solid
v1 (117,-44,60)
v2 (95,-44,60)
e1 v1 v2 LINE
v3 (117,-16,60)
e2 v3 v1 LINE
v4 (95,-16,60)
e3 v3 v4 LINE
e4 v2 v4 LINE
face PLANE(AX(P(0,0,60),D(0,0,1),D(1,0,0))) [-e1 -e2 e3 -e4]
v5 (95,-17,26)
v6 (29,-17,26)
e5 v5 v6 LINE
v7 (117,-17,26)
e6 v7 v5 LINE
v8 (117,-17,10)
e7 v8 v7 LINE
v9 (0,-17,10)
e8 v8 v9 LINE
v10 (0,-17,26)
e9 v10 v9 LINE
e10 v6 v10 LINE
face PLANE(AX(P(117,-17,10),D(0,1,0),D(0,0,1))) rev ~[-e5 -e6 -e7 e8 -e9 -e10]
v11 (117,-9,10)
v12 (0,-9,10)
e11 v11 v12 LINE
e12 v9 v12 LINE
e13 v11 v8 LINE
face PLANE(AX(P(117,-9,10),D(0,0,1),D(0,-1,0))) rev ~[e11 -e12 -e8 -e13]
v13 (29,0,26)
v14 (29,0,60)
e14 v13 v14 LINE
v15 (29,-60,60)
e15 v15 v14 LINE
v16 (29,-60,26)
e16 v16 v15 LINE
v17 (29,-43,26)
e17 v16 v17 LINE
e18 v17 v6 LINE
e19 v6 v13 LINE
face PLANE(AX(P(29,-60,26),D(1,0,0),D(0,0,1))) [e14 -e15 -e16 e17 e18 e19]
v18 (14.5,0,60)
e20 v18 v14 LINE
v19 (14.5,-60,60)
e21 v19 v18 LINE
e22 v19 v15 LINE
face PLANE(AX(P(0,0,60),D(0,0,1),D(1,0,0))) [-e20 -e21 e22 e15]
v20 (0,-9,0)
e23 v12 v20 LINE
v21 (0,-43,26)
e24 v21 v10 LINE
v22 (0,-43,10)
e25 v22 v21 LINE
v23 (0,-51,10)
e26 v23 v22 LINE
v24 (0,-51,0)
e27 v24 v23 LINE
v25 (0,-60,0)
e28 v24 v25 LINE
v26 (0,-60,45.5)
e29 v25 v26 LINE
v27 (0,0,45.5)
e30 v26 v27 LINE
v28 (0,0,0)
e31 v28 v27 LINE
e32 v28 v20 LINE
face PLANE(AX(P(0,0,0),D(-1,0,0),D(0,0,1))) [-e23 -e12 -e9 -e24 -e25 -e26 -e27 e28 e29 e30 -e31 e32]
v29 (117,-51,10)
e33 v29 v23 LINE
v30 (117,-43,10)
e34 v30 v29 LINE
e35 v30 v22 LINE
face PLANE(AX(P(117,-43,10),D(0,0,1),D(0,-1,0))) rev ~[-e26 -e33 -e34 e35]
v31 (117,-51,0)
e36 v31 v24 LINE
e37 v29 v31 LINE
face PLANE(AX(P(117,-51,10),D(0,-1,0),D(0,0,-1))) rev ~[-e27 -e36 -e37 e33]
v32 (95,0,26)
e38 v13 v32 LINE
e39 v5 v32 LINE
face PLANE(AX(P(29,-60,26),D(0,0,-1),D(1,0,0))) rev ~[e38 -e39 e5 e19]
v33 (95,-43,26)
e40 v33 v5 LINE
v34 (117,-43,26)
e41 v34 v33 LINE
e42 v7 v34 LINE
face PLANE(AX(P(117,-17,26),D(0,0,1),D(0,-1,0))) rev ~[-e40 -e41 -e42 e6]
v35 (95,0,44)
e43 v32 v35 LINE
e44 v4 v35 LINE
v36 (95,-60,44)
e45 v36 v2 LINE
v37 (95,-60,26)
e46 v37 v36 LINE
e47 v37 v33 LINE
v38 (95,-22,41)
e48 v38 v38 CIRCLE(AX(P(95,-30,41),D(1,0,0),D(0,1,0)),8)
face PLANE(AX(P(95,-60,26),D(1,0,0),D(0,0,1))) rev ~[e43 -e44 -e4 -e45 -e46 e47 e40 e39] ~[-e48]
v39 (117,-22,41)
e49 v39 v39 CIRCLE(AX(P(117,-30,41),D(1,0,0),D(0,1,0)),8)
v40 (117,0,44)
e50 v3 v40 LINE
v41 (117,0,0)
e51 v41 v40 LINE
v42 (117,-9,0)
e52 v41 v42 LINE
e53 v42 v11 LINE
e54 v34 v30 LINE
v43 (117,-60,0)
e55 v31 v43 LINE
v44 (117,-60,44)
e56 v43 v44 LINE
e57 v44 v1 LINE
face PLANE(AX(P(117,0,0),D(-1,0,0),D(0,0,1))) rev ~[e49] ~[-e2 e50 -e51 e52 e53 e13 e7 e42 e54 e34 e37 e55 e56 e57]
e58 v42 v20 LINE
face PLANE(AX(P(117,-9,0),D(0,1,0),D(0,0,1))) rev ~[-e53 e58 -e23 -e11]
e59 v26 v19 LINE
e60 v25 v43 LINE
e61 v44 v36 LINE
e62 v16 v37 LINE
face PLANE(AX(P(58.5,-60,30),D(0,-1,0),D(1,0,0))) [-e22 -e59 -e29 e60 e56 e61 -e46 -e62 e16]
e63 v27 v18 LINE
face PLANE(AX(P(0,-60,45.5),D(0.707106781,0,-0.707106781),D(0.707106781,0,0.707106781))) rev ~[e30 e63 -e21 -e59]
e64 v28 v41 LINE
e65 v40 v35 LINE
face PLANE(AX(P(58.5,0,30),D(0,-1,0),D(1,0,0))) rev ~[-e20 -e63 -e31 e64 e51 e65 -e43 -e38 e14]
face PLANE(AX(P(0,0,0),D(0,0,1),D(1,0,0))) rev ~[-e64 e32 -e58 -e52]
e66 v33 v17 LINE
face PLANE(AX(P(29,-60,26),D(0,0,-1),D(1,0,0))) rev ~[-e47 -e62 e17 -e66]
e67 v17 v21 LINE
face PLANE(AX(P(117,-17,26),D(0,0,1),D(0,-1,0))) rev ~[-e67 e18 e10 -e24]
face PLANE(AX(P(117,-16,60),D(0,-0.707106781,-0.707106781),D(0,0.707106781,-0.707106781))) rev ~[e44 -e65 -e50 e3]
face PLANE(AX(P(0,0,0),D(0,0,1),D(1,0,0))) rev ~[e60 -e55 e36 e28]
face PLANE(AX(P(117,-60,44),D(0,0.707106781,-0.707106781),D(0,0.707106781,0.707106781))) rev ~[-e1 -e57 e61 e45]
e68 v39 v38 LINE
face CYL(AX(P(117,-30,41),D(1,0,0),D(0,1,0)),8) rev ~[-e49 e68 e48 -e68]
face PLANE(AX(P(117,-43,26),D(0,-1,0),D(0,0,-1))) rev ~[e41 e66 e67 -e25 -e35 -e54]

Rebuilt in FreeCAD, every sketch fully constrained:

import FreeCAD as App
import Part
import Sketcher

V = App.Vector
Q = App.Units.Quantity


def add_polygon(sketch, points):
    """Adds a closed chain of lines whose ends are joined by coincident constraints."""
    first, n = sketch.GeometryCount, len(points)
    for a, b in zip(points, points[1:] + points[:1]):
        sketch.addGeometry(Part.LineSegment(App.Vector(*a, 0), App.Vector(*b, 0)), False)
    for i in range(n):
        sketch.addConstraint(Sketcher.Constraint("Coincident", first + i, 2, first + (i + 1) % n, 1))

doc = App.newDocument("Part")
body = doc.addObject("PartDesign::Body", "Body")

# Sketch on XZ plane
sketch1 = doc.addObject("Sketcher::SketchObject", "Sketch")
body.addObject(sketch1)
sketch1.AttachmentSupport = (doc.XZ_Plane, [""])
sketch1.MapMode = "FlatFace"
add_polygon(sketch1, [(0, 60), (0, 0), (117, 0), (117, 60)])  # lines 0-3
sketch1.addConstraint([
    Sketcher.Constraint("Vertical", 0),
    Sketcher.Constraint("Horizontal", 1),
    Sketcher.Constraint("Vertical", 2),
    Sketcher.Constraint("Horizontal", 3),
    Sketcher.Constraint("Coincident", 0, 2, -1, 1),
    Sketcher.Constraint("DistanceX", 1, 1, 1, 2, Q("117 mm")),
    Sketcher.Constraint("DistanceY", 0, 2, 0, 1, Q("60 mm")),
])
pad1 = doc.addObject("PartDesign::Pad", "Pad")
body.addObject(pad1)
pad1.Profile = sketch1
pad1.Length = 60

# Sketch on XZ plane
sketch2 = doc.addObject("Sketcher::SketchObject", "Sketch001")
body.addObject(sketch2)
sketch2.AttachmentSupport = (doc.XZ_Plane, [""])
sketch2.MapMode = "FlatFace"
sketch2.AttachmentOffset = App.Placement(V(0, 0, 60), App.Rotation())
add_polygon(sketch2, [(29, 60), (29, 26), (95, 26), (95, 60)])  # lines 0-3
sketch2.addConstraint([
    Sketcher.Constraint("Vertical", 0),
    Sketcher.Constraint("Horizontal", 1),
    Sketcher.Constraint("Vertical", 2),
    Sketcher.Constraint("Horizontal", 3),
    Sketcher.Constraint("DistanceX", 1, 1, 1, 2, Q("66 mm")),
    Sketcher.Constraint("DistanceY", 0, 2, 0, 1, Q("34 mm")),
    Sketcher.Constraint("DistanceX", -1, 1, 0, 2, Q("29 mm")),
    Sketcher.Constraint("DistanceY", -1, 1, 0, 2, Q("26 mm")),
])
pocket1 = doc.addObject("PartDesign::Pocket", "Pocket")
body.addObject(pocket1)
pocket1.Profile = sketch2
pocket1.Type = "ThroughAll"

# Sketch on XZ plane
sketch3 = doc.addObject("Sketcher::SketchObject", "Sketch002")
body.addObject(sketch3)
sketch3.AttachmentSupport = (doc.XZ_Plane, [""])
sketch3.MapMode = "FlatFace"
sketch3.AttachmentOffset = App.Placement(V(0, 0, 60), App.Rotation())
add_polygon(sketch3, [(0, 45.5), (14.5, 60), (0, 60)])  # lines 0-2
sketch3.addConstraint([
    Sketcher.Constraint("Horizontal", 1),
    Sketcher.Constraint("Vertical", 2),
    Sketcher.Constraint("PointOnObject", 1, 2, -2),
    Sketcher.Constraint("Equal", 1, 2),
    Sketcher.Constraint("DistanceX", 1, 2, 1, 1, Q("14.5 mm")),
    Sketcher.Constraint("DistanceY", -1, 1, 0, 2, Q("60 mm")),
])
pocket2 = doc.addObject("PartDesign::Pocket", "Pocket001")
body.addObject(pocket2)
pocket2.Profile = sketch3
pocket2.Type = "ThroughAll"

# Sketch on YZ plane
sketch4 = doc.addObject("Sketcher::SketchObject", "Sketch003")
body.addObject(sketch4)
sketch4.AttachmentSupport = (doc.YZ_Plane, [""])
sketch4.MapMode = "FlatFace"
sketch4.AttachmentOffset = App.Placement(V(0, 0, 117), App.Rotation())
add_polygon(sketch4, [(-51, 10), (-51, 0), (-9, 0), (-9, 10), (-17, 10), (-17, 26), (-43, 26), (-43, 10)])  # lines 0-7
sketch4.addConstraint([
    Sketcher.Constraint("Vertical", 0),
    Sketcher.Constraint("Horizontal", 1),
    Sketcher.Constraint("Vertical", 2),
    Sketcher.Constraint("Horizontal", 3),
    Sketcher.Constraint("Vertical", 4),
    Sketcher.Constraint("Horizontal", 5),
    Sketcher.Constraint("Vertical", 6),
    Sketcher.Constraint("Horizontal", 7),
    Sketcher.Constraint("PointOnObject", 0, 2, -1),
    Sketcher.Constraint("Horizontal", 3, 2, 6, 2),
    Sketcher.Constraint("Equal", 3, 7),
    Sketcher.Constraint("DistanceX", 1, 1, 1, 2, Q("42 mm")),
    Sketcher.Constraint("DistanceX", 3, 2, 3, 1, Q("8 mm")),
    Sketcher.Constraint("DistanceY", 0, 2, 0, 1, Q("10 mm")),
    Sketcher.Constraint("DistanceY", 4, 1, 4, 2, Q("16 mm")),
    Sketcher.Constraint("DistanceX", 0, 2, -1, 1, Q("51 mm")),
])
pocket3 = doc.addObject("PartDesign::Pocket", "Pocket002")
body.addObject(pocket3)
pocket3.Profile = sketch4
pocket3.Type = "ThroughAll"

# Sketch on YZ plane
sketch5 = doc.addObject("Sketcher::SketchObject", "Sketch004")
body.addObject(sketch5)
sketch5.AttachmentSupport = (doc.YZ_Plane, [""])
sketch5.MapMode = "FlatFace"
sketch5.AttachmentOffset = App.Placement(V(0, 0, 117), App.Rotation())
add_polygon(sketch5, [(-44, 60), (-60, 60), (-60, 44)])  # lines 0-2
add_polygon(sketch5, [(0, 60), (-16, 60), (0, 44)])  # lines 3-5
sketch5.addConstraint([
    Sketcher.Constraint("Horizontal", 0),
    Sketcher.Constraint("Vertical", 1),
    Sketcher.Constraint("Horizontal", 3),
    Sketcher.Constraint("Vertical", 5),
    Sketcher.Constraint("PointOnObject", 4, 2, -2),
    Sketcher.Constraint("Perpendicular", 2, 4),
    Sketcher.Constraint("Horizontal", 2, 2, 3, 2),
    Sketcher.Constraint("Horizontal", 1, 2, 4, 2),
    Sketcher.Constraint("Equal", 0, 3),
    Sketcher.Constraint("DistanceX", 0, 2, 0, 1, Q("16 mm")),
    Sketcher.Constraint("DistanceX", 0, 2, -1, 1, Q("60 mm")),
    Sketcher.Constraint("DistanceY", -1, 1, 0, 2, Q("60 mm")),
])
pocket4 = doc.addObject("PartDesign::Pocket", "Pocket003")
body.addObject(pocket4)
pocket4.Profile = sketch5
pocket4.Length = 22

# Sketch on YZ plane
sketch6 = doc.addObject("Sketcher::SketchObject", "Sketch005")
body.addObject(sketch6)
sketch6.AttachmentSupport = (doc.YZ_Plane, [""])
sketch6.MapMode = "FlatFace"
sketch6.AttachmentOffset = App.Placement(V(0, 0, 117), App.Rotation())
sketch6.addGeometry(Part.Circle(V(-30, 41, 0), V(0, 0, 1), 8), False)
sketch6.addConstraint([
    Sketcher.Constraint("Diameter", 0, Q("16 mm")),
    Sketcher.Constraint("DistanceX", 0, 3, -1, 1, Q("30 mm")),
    Sketcher.Constraint("DistanceY", -1, 1, 0, 3, Q("41 mm")),
])
pocket5 = doc.addObject("PartDesign::Pocket", "Pocket004")
body.addObject(pocket5)
pocket5.Profile = sketch6
pocket5.Length = 22

doc.recompute()
